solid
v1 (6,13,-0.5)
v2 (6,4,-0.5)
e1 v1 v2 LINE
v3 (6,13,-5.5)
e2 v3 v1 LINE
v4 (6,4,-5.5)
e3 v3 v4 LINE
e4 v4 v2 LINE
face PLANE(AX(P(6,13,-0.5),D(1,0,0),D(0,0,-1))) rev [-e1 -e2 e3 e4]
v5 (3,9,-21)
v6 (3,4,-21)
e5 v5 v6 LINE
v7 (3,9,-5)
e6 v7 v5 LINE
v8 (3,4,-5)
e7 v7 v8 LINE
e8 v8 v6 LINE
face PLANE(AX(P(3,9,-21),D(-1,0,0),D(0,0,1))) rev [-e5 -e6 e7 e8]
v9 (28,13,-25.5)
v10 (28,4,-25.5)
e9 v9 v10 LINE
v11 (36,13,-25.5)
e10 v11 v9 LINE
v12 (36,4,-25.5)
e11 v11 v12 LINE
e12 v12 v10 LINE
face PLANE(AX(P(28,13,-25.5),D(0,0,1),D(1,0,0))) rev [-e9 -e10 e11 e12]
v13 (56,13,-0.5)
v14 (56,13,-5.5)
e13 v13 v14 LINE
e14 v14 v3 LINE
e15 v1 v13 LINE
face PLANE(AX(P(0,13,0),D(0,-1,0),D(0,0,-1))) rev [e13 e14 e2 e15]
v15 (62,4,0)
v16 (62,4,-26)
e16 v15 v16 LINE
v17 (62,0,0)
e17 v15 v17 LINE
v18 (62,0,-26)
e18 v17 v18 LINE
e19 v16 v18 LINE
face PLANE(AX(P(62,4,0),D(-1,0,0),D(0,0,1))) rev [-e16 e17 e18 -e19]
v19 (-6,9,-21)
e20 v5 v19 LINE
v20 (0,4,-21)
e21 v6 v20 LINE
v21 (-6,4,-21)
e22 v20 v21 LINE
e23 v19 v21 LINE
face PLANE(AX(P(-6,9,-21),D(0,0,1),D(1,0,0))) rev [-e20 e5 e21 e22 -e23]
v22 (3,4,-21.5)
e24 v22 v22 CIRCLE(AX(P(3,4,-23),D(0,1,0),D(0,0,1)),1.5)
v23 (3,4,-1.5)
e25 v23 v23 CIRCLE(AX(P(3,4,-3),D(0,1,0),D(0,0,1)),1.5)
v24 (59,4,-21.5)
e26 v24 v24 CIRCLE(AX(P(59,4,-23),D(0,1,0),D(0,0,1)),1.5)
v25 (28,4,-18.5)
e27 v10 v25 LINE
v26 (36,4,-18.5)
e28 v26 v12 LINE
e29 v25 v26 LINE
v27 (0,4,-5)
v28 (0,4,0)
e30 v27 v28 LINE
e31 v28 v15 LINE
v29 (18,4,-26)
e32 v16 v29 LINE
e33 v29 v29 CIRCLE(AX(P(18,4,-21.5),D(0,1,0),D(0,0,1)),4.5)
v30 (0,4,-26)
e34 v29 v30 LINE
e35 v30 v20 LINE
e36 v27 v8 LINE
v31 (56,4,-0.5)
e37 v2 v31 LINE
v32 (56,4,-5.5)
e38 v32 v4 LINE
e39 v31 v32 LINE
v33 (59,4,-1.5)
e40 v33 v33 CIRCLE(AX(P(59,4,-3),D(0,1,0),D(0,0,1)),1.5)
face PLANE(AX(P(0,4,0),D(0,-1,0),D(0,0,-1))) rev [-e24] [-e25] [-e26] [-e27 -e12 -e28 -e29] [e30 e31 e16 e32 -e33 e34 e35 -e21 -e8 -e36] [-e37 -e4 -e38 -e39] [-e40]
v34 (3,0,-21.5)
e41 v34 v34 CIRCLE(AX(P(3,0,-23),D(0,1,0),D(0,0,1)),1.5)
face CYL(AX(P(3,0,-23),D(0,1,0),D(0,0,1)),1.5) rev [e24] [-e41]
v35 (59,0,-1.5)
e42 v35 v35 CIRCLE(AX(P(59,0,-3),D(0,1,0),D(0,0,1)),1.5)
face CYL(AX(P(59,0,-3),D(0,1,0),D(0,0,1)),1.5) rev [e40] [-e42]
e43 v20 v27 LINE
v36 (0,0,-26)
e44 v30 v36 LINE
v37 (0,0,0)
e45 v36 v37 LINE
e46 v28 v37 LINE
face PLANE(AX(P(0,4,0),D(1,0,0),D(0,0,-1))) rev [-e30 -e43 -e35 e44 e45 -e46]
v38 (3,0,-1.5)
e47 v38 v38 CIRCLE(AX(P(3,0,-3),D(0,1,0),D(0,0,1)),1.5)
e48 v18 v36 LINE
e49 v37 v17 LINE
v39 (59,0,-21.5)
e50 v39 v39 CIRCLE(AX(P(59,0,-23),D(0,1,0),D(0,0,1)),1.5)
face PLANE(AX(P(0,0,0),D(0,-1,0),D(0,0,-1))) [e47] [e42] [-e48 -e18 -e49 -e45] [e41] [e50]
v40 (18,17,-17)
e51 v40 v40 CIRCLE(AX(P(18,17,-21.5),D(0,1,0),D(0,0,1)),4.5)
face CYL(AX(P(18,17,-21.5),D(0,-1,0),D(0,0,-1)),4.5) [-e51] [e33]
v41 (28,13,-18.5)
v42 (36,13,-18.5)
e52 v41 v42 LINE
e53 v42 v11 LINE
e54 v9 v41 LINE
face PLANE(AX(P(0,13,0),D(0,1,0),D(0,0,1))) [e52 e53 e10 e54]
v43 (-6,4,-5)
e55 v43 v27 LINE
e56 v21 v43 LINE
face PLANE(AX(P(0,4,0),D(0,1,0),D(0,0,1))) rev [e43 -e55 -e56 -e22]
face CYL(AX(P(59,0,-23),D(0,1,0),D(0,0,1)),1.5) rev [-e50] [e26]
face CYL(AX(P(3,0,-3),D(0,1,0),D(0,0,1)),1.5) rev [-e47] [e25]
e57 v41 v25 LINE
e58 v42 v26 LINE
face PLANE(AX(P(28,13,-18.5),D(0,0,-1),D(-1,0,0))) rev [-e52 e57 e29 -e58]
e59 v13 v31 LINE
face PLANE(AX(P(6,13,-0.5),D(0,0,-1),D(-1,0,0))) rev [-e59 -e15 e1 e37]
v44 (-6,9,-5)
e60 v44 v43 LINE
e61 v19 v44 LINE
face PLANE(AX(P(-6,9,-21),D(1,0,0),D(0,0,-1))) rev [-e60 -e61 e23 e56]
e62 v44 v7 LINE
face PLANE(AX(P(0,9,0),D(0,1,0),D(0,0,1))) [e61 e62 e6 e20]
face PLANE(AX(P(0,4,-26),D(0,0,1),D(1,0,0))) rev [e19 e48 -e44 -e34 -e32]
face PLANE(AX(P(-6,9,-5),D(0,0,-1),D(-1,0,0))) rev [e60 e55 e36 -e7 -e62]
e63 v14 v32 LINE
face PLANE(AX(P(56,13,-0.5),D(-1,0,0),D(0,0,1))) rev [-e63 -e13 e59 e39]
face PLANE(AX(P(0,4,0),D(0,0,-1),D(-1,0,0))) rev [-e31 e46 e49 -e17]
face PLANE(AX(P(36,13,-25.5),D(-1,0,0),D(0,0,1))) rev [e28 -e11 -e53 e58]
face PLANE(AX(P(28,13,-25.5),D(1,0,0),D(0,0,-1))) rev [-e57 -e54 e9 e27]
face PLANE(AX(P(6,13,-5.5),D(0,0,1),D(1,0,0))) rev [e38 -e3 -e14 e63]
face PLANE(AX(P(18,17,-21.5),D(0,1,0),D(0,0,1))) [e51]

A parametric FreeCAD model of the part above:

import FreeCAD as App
import Part
import Sketcher
from FreeCAD import Vector

doc = App.newDocument("Part")
body = doc.addObject("PartDesign::Body", "Body")

sketch1 = body.newObject("Sketcher::SketchObject", "Sketch")
sketch1.AttachmentSupport = (doc.getObject("XZ_Plane"), [""])
sketch1.MapMode = "FlatFace"
sketch1.addGeometry([
    Part.LineSegment(Vector(0, -26, 0), Vector(0, 0, 0)),
    Part.LineSegment(Vector(0, 0, 0), Vector(62, 0, 0)),
    Part.LineSegment(Vector(62, 0, 0), Vector(62, -26, 0)),
    Part.LineSegment(Vector(62, -26, 0), Vector(0, -26, 0)),
], False)
sketch1.addConstraint([
    Sketcher.Constraint("Coincident", 0, 2, 1, 1),
    Sketcher.Constraint("Coincident", 1, 2, 2, 1),
    Sketcher.Constraint("Coincident", 2, 2, 3, 1),
    Sketcher.Constraint("Coincident", 3, 2, 0, 1),
    Sketcher.Constraint("Vertical", 0),
    Sketcher.Constraint("Horizontal", 1),
    Sketcher.Constraint("Vertical", 2),
    Sketcher.Constraint("Horizontal", 3),
    Sketcher.Constraint("Coincident", 0, 2, -1, 1),
    Sketcher.Constraint("DistanceX", 1, 1, 1, 2, 62.0),
    Sketcher.Constraint("DistanceY", 0, 1, 0, 2, 26.0),
])
pad1 = body.newObject("PartDesign::Pad", "Pad")
pad1.Profile = sketch1
pad1.Length = 4
pad1.Reversed = True

sketch2 = body.newObject("Sketcher::SketchObject", "Sketch001")
sketch2.AttachmentSupport = (doc.getObject("XZ_Plane"), [""])
sketch2.MapMode = "FlatFace"
sketch2.AttachmentOffset = App.Placement(Vector(0, 0, -4), App.Rotation())
sketch2.addGeometry([
    Part.Circle(Vector(3, -23, 0), Vector(0, 0, 1), 1.5),
    Part.Circle(Vector(3, -3, 0), Vector(0, 0, 1), 1.5),
    Part.Circle(Vector(59, -3, 0), Vector(0, 0, 1), 1.5),
    Part.Circle(Vector(59, -23, 0), Vector(0, 0, 1), 1.5),
], False)
sketch2.addConstraint([
    Sketcher.Constraint("Equal", 0, 1),
    Sketcher.Constraint("Equal", 1, 2),
    Sketcher.Constraint("Equal", 2, 3),
    Sketcher.Constraint("Horizontal", 1, 3, 2, 3),
    Sketcher.Constraint("Horizontal", 0, 3, 3, 3),
    Sketcher.Constraint("Vertical", 0, 3, 1, 3),
    Sketcher.Constraint("Vertical", 2, 3, 3, 3),
    Sketcher.Constraint("Diameter", 0, 3.0),
    Sketcher.Constraint("DistanceX", -1, 1, 0, 3, 3.0),
    Sketcher.Constraint("DistanceY", 0, 3, -1, 1, 23.0),
    Sketcher.Constraint("DistanceY", 1, 3, -1, 1, 3.0),
    Sketcher.Constraint("DistanceX", -1, 1, 2, 3, 59.0),
])
pocket1 = body.newObject("PartDesign::Pocket", "Pocket")
pocket1.Profile = sketch2
pocket1.Type = "ThroughAll"
pocket1.Reversed = True

sketch3 = body.newObject("Sketcher::SketchObject", "Sketch002")
sketch3.AttachmentSupport = (doc.getObject("XZ_Plane"), [""])
sketch3.MapMode = "FlatFace"
sketch3.AttachmentOffset = App.Placement(Vector(0, 0, -4), App.Rotation())
sketch3.addGeometry([
    Part.LineSegment(Vector(6, -6, 0), Vector(6, 0, 0)),
    Part.LineSegment(Vector(6, 0, 0), Vector(56, 0, 0)),
    Part.LineSegment(Vector(56, 0, 0), Vector(56, -6, 0)),
    Part.LineSegment(Vector(56, -6, 0), Vector(6, -6, 0)),
], False)
sketch3.addConstraint([
    Sketcher.Constraint("Coincident", 0, 2, 1, 1),
    Sketcher.Constraint("Coincident", 1, 2, 2, 1),
    Sketcher.Constraint("Coincident", 2, 2, 3, 1),
    Sketcher.Constraint("Coincident", 3, 2, 0, 1),
    Sketcher.Constraint("Vertical", 0),
    Sketcher.Constraint("Horizontal", 1),
    Sketcher.Constraint("Vertical", 2),
    Sketcher.Constraint("Horizontal", 3),
    Sketcher.Constraint("DistanceX", 1, 1, 1, 2, 50.0),
    Sketcher.Constraint("DistanceY", 0, 1, 0, 2, 5.0),
    Sketcher.Constraint("DistanceX", -1, 1, 0, 2, 6.0),
    Sketcher.Constraint("DistanceY", 0, 2, -1, 1, 0.5),
])
pad2 = body.newObject("PartDesign::Pad", "Pad001")
pad2.Profile = sketch3
pad2.Length = 9
pad2.Reversed = True

sketch4 = body.newObject("Sketcher::SketchObject", "Sketch003")
sketch4.AttachmentSupport = (doc.getObject("XZ_Plane"), [""])
sketch4.MapMode = "FlatFace"
sketch4.AttachmentOffset = App.Placement(Vector(0, 0, -4), App.Rotation())
sketch4.addGeometry(Part.Circle(Vector(18, -21.5, 0), Vector(0, 0, 1), 4.5), False)
sketch4.addConstraint([
    Sketcher.Constraint("Diameter", 0, 9.0),
    Sketcher.Constraint("DistanceX", -1, 1, 0, 3, 18.0),
    Sketcher.Constraint("DistanceY", 0, 3, -1, 1, 21.5),
])
pad3 = body.newObject("PartDesign::Pad", "Pad002")
pad3.Profile = sketch4
pad3.Length = 13
pad3.Reversed = True

sketch5 = body.newObject("Sketcher::SketchObject", "Sketch004")
sketch5.AttachmentSupport = (doc.getObject("XZ_Plane"), [""])
sketch5.MapMode = "FlatFace"
sketch5.AttachmentOffset = App.Placement(Vector(0, 0, -4), App.Rotation())
sketch5.addGeometry([
    Part.LineSegment(Vector(28, -26, 0), Vector(28, -18, 0)),
    Part.LineSegment(Vector(28, -18, 0), Vector(36, -18, 0)),
    Part.LineSegment(Vector(36, -18, 0), Vector(36, -26, 0)),
    Part.LineSegment(Vector(36, -26, 0), Vector(28, -26, 0)),
], False)
sketch5.addConstraint([
    Sketcher.Constraint("Coincident", 0, 2, 1, 1),
    Sketcher.Constraint("Coincident", 1, 2, 2, 1),
    Sketcher.Constraint("Coincident", 2, 2, 3, 1),
    Sketcher.Constraint("Coincident", 3, 2, 0, 1),
    Sketcher.Constraint("Vertical", 0),
    Sketcher.Constraint("Horizontal", 1),
    Sketcher.Constraint("Vertical", 2),
    Sketcher.Constraint("Horizontal", 3),
    Sketcher.Constraint("DistanceX", 1, 1, 1, 2, 8.0),
    Sketcher.Constraint("DistanceY", 0, 1, 0, 2, 7.0),
    Sketcher.Constraint("DistanceX", -1, 1, 0, 2, 28.0),
    Sketcher.Constraint("DistanceY", 0, 2, -1, 1, 18.5),
])
pad4 = body.newObject("PartDesign::Pad", "Pad003")
pad4.Profile = sketch5
pad4.Length = 9
pad4.Reversed = True

sketch6 = body.newObject("Sketcher::SketchObject", "Sketch005")
sketch6.AttachmentSupport = (doc.getObject("XZ_Plane"), [""])
sketch6.MapMode = "FlatFace"
sketch6.AttachmentOffset = App.Placement(Vector(0, 0, -4), App.Rotation())
sketch6.addGeometry([
    Part.LineSegment(Vector(-6, -21, 0), Vector(-6, -5, 0)),
    Part.LineSegment(Vector(-6, -5, 0), Vector(3, -5, 0)),
    Part.LineSegment(Vector(3, -5, 0), Vector(3, -21, 0)),
    Part.LineSegment(Vector(3, -21, 0), Vector(-6, -21, 0)),
], False)
sketch6.addConstraint([
    Sketcher.Constraint("Coincident", 0, 2, 1, 1),
    Sketcher.Constraint("Coincident", 1, 2, 2, 1),
    Sketcher.Constraint("Coincident", 2, 2, 3, 1),
    Sketcher.Constraint("Coincident", 3, 2, 0, 1),
    Sketcher.Constraint("Vertical", 0),
    Sketcher.Constraint("Horizontal", 1),
    Sketcher.Constraint("Vertical", 2),
    Sketcher.Constraint("Horizontal", 3),
    Sketcher.Constraint("DistanceX", 1, 1, 1, 2, 9.0),
    Sketcher.Constraint("DistanceY", 0, 1, 0, 2, 16.0),
    Sketcher.Constraint("DistanceX", 0, 2, -1, 1, 6.0),
    Sketcher.Constraint("DistanceY", 0, 2, -1, 1, 5.0),
])
pad5 = body.newObject("PartDesign::Pad", "Pad004")
pad5.Profile = sketch6
pad5.Length = 5
pad5.Reversed = True

doc.recompute()
